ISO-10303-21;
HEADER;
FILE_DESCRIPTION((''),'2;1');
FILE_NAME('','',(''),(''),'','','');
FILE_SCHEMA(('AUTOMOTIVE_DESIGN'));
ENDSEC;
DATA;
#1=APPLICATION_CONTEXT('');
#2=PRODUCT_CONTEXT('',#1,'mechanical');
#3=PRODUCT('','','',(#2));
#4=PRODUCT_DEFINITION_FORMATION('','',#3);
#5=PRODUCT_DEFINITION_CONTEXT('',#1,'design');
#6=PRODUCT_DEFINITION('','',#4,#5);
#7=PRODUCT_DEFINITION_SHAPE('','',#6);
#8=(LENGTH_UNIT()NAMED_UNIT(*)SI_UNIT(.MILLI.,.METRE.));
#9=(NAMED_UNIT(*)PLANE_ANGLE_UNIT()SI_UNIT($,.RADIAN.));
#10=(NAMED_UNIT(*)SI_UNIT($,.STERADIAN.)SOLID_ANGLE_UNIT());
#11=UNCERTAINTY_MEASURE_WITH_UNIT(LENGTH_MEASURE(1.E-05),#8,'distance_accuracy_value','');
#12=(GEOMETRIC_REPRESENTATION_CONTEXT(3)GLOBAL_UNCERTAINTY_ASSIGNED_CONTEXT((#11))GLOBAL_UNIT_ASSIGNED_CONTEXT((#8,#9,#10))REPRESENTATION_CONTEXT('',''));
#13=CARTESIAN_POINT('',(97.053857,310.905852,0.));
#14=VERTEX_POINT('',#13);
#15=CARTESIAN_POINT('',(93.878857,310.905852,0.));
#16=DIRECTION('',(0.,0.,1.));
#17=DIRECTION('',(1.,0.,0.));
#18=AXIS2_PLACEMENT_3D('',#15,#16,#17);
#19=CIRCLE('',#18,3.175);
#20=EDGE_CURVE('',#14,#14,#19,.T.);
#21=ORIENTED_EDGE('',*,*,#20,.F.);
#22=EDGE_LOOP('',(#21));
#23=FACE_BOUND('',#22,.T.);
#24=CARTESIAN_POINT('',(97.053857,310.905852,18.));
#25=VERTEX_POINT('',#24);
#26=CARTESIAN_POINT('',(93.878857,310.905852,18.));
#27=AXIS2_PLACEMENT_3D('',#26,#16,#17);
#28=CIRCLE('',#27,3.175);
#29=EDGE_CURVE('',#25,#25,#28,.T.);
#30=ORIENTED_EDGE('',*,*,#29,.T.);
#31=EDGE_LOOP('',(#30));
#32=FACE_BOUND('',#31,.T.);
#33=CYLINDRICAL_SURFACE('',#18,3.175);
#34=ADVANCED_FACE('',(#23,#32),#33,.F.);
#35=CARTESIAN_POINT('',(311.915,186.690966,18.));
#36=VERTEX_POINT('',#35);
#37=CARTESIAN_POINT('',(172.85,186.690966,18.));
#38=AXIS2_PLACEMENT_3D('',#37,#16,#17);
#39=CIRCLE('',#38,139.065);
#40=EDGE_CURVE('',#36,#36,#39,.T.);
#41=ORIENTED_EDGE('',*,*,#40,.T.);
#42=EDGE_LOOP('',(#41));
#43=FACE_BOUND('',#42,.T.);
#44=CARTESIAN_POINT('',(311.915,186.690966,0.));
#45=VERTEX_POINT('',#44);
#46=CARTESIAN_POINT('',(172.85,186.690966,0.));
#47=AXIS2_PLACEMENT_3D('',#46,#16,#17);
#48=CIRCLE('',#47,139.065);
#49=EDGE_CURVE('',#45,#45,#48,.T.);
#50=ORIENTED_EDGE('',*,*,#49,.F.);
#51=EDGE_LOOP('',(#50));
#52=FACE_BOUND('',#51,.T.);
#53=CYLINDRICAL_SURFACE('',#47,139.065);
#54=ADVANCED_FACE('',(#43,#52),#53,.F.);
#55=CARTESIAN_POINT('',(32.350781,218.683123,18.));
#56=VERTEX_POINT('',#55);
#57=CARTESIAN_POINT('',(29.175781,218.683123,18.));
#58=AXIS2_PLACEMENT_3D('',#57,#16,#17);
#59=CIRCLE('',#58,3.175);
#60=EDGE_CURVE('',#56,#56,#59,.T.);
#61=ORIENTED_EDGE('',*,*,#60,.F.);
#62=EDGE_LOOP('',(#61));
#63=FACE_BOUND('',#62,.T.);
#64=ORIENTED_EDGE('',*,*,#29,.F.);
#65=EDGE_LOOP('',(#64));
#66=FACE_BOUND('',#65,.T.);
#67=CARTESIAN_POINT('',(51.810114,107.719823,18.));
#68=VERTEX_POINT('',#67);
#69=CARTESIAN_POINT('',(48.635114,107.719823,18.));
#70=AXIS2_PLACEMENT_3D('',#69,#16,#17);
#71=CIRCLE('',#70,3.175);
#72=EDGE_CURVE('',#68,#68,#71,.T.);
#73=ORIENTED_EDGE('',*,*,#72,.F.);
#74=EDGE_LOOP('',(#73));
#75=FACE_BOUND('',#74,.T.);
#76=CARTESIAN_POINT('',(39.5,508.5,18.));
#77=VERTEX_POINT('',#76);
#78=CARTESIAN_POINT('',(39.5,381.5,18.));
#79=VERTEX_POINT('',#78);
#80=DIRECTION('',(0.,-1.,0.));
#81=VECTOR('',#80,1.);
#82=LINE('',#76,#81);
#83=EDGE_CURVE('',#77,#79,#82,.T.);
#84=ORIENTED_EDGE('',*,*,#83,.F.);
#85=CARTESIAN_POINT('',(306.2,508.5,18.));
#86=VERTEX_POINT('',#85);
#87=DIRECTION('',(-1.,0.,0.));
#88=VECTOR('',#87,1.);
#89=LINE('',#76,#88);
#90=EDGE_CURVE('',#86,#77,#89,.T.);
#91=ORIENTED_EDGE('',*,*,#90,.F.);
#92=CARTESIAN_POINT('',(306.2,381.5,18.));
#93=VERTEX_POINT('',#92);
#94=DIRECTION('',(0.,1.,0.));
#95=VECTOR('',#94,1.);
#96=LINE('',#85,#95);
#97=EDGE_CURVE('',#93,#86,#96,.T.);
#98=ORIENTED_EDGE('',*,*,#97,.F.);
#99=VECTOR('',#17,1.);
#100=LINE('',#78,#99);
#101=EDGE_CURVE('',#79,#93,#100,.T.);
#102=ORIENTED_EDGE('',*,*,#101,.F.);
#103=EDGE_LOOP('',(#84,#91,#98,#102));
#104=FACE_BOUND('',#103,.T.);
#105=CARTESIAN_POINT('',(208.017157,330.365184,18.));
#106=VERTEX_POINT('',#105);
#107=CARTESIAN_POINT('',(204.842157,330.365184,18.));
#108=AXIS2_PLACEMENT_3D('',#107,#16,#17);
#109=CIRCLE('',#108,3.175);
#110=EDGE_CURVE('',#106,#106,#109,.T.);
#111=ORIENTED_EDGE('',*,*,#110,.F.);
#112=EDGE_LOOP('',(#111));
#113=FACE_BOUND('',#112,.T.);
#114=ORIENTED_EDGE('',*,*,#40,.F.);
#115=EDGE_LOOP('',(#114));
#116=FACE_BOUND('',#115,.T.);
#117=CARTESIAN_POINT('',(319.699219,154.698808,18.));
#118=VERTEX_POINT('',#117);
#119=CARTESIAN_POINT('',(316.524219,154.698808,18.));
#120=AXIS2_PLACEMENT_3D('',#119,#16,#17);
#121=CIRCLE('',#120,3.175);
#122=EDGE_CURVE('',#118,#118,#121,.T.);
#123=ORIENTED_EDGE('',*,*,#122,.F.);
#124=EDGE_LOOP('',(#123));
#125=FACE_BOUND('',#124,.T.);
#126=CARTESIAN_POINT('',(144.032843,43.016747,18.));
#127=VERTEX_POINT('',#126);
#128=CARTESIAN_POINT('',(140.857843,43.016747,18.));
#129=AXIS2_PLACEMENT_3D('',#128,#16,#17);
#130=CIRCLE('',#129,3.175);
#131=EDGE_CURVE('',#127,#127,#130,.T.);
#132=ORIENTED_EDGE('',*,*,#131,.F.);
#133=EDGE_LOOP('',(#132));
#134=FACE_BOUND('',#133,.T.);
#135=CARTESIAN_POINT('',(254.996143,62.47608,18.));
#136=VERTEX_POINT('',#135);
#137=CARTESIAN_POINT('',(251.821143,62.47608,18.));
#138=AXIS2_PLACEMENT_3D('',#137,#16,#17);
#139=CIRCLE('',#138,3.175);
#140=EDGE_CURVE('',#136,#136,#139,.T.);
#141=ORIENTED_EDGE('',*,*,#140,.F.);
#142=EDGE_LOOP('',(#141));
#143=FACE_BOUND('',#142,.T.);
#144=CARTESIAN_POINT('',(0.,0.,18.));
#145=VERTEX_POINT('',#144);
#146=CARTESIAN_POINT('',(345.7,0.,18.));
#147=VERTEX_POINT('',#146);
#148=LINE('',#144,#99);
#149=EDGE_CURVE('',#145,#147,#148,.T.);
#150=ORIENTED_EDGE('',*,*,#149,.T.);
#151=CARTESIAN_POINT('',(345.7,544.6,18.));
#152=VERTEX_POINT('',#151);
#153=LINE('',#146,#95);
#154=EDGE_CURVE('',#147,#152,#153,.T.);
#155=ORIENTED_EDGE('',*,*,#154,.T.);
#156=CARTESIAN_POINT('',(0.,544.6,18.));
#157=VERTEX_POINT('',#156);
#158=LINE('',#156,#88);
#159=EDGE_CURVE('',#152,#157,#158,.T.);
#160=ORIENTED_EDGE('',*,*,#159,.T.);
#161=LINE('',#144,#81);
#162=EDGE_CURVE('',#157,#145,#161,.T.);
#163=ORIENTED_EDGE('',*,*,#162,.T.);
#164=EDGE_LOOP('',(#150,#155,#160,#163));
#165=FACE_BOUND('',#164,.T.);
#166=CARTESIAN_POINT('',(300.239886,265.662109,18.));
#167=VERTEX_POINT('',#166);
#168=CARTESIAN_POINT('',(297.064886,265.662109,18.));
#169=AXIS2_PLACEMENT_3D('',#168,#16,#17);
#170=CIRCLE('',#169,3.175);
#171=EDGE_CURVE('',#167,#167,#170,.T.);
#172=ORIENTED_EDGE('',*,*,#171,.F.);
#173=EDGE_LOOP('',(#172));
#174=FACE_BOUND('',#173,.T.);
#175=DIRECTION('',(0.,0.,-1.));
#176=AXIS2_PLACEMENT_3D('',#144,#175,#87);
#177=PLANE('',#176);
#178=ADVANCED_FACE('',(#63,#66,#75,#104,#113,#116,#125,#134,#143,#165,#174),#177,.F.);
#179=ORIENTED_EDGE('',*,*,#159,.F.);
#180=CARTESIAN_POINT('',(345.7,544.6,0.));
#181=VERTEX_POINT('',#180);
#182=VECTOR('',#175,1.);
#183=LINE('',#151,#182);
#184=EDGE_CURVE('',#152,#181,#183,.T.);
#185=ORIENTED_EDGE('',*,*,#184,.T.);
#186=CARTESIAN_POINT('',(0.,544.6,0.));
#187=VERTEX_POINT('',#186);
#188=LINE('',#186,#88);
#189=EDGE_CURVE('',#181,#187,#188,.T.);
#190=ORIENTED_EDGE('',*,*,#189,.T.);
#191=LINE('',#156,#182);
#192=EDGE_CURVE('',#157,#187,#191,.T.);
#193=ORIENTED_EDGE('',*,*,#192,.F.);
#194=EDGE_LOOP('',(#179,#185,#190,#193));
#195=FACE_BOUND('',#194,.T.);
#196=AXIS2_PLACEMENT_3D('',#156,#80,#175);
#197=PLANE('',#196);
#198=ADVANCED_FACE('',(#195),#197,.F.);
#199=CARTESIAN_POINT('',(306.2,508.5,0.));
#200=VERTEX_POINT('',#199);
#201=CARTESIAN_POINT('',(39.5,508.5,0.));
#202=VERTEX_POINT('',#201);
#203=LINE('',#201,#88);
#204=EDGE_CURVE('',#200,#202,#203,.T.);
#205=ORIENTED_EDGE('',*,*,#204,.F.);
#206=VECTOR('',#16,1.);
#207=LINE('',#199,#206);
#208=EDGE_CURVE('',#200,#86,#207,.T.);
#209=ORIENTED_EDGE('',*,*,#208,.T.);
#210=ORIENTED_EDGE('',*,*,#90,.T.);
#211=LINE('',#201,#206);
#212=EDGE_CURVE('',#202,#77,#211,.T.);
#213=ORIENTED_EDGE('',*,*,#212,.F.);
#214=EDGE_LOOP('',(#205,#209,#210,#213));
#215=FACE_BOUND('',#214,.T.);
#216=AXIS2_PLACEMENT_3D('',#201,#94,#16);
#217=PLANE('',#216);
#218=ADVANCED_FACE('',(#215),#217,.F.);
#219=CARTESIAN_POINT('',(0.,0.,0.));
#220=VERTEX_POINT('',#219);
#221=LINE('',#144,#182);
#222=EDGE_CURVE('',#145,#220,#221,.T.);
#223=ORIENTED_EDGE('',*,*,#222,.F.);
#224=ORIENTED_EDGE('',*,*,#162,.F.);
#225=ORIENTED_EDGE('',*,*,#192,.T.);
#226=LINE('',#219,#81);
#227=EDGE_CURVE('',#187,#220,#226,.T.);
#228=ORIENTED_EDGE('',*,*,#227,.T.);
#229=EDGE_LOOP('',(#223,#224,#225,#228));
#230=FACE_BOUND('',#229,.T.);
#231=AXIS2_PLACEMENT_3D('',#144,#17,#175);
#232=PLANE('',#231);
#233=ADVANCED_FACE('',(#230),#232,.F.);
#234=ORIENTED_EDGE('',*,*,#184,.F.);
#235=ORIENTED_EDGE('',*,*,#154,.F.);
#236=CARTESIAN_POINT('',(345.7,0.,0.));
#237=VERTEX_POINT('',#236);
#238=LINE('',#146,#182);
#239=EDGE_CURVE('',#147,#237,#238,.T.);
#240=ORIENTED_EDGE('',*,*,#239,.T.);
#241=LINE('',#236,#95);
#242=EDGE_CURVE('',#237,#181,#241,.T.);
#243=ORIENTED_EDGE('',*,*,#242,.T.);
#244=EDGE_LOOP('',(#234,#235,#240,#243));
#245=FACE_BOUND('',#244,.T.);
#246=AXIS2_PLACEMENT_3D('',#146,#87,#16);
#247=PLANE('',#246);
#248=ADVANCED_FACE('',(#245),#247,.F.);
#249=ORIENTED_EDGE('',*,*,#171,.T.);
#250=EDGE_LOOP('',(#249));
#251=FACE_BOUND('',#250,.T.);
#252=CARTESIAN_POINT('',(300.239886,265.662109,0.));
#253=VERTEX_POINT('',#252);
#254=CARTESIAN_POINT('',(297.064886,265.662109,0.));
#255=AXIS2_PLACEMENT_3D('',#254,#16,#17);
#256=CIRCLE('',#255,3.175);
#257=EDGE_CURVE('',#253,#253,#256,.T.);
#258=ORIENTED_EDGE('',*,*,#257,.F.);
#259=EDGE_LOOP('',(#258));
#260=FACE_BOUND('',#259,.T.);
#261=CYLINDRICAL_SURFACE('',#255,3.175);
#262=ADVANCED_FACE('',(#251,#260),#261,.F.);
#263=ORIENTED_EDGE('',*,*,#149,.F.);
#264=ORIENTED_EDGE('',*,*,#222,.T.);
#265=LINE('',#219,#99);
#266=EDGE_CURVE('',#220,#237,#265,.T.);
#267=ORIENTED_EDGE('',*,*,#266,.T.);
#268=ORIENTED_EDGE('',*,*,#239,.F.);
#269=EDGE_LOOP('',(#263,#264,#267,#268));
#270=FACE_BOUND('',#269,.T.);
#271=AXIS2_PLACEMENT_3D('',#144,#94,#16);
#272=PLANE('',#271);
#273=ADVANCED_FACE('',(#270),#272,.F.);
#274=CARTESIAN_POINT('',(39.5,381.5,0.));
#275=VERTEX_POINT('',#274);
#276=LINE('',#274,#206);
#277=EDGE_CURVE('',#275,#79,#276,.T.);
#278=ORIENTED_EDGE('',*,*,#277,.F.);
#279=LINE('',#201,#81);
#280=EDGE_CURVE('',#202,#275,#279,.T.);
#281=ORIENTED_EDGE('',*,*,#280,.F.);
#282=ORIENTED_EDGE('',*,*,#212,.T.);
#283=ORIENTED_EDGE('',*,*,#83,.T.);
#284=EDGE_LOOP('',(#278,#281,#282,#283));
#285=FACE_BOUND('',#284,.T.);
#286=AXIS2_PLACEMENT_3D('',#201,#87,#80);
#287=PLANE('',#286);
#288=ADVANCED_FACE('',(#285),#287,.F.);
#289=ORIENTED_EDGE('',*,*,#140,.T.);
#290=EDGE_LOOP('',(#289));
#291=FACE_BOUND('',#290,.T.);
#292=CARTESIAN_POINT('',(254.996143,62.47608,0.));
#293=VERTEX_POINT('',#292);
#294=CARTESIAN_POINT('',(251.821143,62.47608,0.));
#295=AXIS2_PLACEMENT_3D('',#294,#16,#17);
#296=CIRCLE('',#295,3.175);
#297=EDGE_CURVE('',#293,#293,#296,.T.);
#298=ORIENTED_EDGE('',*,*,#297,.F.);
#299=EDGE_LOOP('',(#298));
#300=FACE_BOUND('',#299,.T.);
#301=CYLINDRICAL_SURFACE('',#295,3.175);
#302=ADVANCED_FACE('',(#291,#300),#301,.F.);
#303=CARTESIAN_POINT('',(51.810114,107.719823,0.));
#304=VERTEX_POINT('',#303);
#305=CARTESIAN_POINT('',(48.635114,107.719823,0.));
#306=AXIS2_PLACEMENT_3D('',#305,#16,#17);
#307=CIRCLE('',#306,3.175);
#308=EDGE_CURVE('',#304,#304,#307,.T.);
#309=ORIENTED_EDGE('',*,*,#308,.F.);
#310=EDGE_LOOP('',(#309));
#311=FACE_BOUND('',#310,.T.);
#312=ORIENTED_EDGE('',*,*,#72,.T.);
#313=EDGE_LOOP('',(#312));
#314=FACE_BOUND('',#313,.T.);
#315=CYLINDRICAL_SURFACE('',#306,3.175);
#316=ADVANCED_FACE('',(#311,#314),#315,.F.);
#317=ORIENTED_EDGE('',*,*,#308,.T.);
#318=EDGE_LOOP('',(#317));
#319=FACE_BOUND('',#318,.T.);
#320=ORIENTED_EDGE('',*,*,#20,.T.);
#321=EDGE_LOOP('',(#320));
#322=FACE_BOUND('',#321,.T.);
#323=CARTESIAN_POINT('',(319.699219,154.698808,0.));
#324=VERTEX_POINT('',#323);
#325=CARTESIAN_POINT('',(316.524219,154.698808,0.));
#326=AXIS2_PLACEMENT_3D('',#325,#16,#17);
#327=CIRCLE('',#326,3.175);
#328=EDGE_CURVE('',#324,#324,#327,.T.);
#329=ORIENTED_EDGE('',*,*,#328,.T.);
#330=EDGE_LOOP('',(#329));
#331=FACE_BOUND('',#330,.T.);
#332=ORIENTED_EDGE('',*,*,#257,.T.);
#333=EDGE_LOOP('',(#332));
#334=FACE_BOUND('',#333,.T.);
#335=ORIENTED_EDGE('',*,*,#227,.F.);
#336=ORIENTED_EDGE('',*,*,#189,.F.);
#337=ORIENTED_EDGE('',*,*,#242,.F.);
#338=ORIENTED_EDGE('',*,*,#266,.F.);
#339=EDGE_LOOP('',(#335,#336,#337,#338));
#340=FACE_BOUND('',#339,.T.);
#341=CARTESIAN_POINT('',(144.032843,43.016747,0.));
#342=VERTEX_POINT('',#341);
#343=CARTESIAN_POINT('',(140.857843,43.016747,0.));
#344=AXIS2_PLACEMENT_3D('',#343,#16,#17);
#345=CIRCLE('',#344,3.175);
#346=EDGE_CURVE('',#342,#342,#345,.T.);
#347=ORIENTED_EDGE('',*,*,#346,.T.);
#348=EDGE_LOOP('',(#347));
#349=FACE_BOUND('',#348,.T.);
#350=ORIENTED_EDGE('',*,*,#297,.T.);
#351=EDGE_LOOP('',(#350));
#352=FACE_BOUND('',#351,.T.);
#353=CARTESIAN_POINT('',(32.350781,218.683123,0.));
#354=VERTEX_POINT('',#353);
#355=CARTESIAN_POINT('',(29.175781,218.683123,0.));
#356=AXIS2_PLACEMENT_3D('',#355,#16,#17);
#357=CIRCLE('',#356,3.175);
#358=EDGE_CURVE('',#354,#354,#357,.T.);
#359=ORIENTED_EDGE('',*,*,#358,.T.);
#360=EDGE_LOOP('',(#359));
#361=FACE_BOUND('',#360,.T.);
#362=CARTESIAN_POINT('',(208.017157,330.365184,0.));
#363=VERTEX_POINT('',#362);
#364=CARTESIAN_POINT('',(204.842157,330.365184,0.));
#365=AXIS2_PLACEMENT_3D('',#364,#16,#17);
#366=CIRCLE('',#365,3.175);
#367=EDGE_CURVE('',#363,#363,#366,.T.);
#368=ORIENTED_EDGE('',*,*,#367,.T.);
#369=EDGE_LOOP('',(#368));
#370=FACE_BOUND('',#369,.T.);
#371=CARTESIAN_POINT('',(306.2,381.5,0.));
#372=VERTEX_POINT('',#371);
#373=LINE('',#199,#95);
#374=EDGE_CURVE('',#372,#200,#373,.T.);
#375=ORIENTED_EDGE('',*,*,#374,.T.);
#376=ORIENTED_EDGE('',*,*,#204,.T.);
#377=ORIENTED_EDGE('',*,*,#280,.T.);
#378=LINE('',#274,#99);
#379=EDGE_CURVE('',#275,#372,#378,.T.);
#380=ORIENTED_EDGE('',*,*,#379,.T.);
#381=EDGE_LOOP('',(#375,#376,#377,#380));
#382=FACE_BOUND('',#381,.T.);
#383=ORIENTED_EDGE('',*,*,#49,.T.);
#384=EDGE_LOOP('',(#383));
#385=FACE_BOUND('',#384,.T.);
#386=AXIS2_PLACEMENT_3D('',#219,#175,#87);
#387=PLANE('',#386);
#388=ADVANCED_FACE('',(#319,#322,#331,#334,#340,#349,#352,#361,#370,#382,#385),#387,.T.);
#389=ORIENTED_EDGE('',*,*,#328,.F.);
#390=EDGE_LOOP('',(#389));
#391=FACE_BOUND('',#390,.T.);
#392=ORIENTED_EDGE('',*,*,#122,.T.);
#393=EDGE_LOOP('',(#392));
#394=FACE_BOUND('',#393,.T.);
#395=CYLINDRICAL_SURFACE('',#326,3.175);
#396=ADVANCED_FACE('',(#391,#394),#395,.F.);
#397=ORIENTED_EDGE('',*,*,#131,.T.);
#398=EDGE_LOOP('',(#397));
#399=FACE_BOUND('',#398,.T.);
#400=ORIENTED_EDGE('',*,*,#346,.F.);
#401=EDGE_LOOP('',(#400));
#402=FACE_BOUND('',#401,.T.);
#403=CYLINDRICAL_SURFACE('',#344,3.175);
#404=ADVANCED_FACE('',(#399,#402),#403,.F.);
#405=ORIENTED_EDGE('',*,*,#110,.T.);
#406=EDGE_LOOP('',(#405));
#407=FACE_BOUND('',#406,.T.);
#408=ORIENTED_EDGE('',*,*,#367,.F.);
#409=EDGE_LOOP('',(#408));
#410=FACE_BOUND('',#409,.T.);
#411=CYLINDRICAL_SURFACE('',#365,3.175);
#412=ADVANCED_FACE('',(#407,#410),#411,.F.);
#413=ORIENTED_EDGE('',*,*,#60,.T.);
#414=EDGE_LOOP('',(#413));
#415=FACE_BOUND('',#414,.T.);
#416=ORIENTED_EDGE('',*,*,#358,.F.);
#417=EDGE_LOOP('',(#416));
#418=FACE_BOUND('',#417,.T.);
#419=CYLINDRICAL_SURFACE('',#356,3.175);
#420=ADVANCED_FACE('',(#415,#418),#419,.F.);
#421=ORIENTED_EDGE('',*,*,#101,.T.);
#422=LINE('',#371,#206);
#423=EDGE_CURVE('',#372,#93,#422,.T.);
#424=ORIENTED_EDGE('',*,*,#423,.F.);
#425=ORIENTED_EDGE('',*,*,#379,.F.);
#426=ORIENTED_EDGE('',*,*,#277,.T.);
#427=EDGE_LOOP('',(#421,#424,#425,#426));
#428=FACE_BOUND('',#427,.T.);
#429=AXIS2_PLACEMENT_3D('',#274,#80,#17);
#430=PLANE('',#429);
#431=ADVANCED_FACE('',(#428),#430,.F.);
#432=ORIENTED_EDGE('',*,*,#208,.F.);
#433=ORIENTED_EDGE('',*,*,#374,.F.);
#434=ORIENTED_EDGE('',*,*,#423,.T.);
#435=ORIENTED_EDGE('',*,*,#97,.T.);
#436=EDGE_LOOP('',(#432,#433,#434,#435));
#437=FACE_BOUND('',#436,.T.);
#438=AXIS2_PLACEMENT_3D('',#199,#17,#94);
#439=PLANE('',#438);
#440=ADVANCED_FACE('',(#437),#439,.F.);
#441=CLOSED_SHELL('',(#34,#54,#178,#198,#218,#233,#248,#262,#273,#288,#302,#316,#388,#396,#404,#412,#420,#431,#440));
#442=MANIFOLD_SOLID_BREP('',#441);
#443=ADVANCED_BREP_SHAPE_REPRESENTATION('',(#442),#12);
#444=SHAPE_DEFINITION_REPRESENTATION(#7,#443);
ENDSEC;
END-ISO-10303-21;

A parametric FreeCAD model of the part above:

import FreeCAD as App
import Part
import Sketcher

V = App.Vector
Q = App.Units.Quantity

doc = App.newDocument("Part")
body = doc.addObject("PartDesign::Body", "Body")

# Sketch on XY plane
sketch1 = body.newObject("Sketcher::SketchObject", "Sketch")
sketch1.AttachmentSupport = (doc.getObject("XY_Plane"), [""])
sketch1.MapMode = "FlatFace"
sketch1.addGeometry([
    Part.LineSegment(V(0, 544.6, 0), V(0, 0, 0)),
    Part.LineSegment(V(0, 0, 0), V(345.7, 0, 0)),
    Part.LineSegment(V(345.7, 0, 0), V(345.7, 544.6, 0)),
    Part.LineSegment(V(345.7, 544.6, 0), V(0, 544.6, 0)),
], False)
sketch1.addConstraint([
    Sketcher.Constraint("Coincident", 0, 2, 1, 1),
    Sketcher.Constraint("Coincident", 1, 2, 2, 1),
    Sketcher.Constraint("Coincident", 2, 2, 3, 1),
    Sketcher.Constraint("Coincident", 3, 2, 0, 1),
    Sketcher.Constraint("Vertical", 0),
    Sketcher.Constraint("Horizontal", 1),
    Sketcher.Constraint("Vertical", 2),
    Sketcher.Constraint("Horizontal", 3),
    Sketcher.Constraint("Coincident", 0, 2, -1, 1),
    Sketcher.Constraint("DistanceX", 1, 1, 1, 2, Q("345.7 mm")),
    Sketcher.Constraint("DistanceY", 0, 2, 0, 1, Q("544.6 mm")),
])
pad1 = body.newObject("PartDesign::Pad", "Pad")
pad1.Profile = sketch1
pad1.Length = 18

# Sketch on XY plane
sketch2 = body.newObject("Sketcher::SketchObject", "Sketch001")
sketch2.AttachmentSupport = (doc.getObject("XY_Plane"), [""])
sketch2.MapMode = "FlatFace"
sketch2.AttachmentOffset = App.Placement(V(0, 0, 18), App.Rotation())
sketch2.addGeometry([
    Part.LineSegment(V(39.5, 508.5, 0), V(39.5, 381.5, 0)),
    Part.LineSegment(V(39.5, 381.5, 0), V(306.2, 381.5, 0)),
    Part.LineSegment(V(306.2, 381.5, 0), V(306.2, 508.5, 0)),
    Part.LineSegment(V(306.2, 508.5, 0), V(39.5, 508.5, 0)),
], False)
sketch2.addConstraint([
    Sketcher.Constraint("Coincident", 0, 2, 1, 1),
    Sketcher.Constraint("Coincident", 1, 2, 2, 1),
    Sketcher.Constraint("Coincident", 2, 2, 3, 1),
    Sketcher.Constraint("Coincident", 3, 2, 0, 1),
    Sketcher.Constraint("Vertical", 0),
    Sketcher.Constraint("Horizontal", 1),
    Sketcher.Constraint("Vertical", 2),
    Sketcher.Constraint("Horizontal", 3),
    Sketcher.Constraint("DistanceY", 0, 2, 0, 1, Q("127 mm")),
    Sketcher.Constraint("DistanceX", 1, 1, 1, 2, Q("266.7 mm")),
    Sketcher.Constraint("DistanceX", -1, 1, 0, 2, Q("39.5 mm")),
    Sketcher.Constraint("DistanceY", -1, 1, 0, 2, Q("381.5 mm")),
])
pocket1 = body.newObject("PartDesign::Pocket", "Pocket")
pocket1.Profile = sketch2
pocket1.Type = "ThroughAll"

# Sketch on XY plane
sketch3 = body.newObject("Sketcher::SketchObject", "Sketch002")
sketch3.AttachmentSupport = (doc.getObject("XY_Plane"), [""])
sketch3.MapMode = "FlatFace"
sketch3.AttachmentOffset = App.Placement(V(0, 0, 18), App.Rotation())
sketch3.addGeometry(Part.Circle(V(172.85, 186.690966, 0), V(0, 0, 1), 139.065), False)
sketch3.addConstraint([
    Sketcher.Constraint("Diameter", 0, Q("278.13 mm")),
    Sketcher.Constraint("DistanceX", -1, 1, 0, 3, Q("172.85 mm")),
    Sketcher.Constraint("DistanceY", -1, 1, 0, 3, Q("186.690966 mm")),
])
pocket2 = body.newObject("PartDesign::Pocket", "Pocket001")
pocket2.Profile = sketch3
pocket2.Type = "ThroughAll"

# Sketch on XY plane
sketch4 = body.newObject("Sketcher::SketchObject", "Sketch003")
sketch4.AttachmentSupport = (doc.getObject("XY_Plane"), [""])
sketch4.MapMode = "FlatFace"
sketch4.AttachmentOffset = App.Placement(V(0, 0, 18), App.Rotation())
sketch4.addGeometry([
    Part.Circle(V(204.842157, 330.365184, 0), V(0, 0, 1), 3.175),  # 0
    Part.Circle(V(297.064886, 265.662109, 0), V(0, 0, 1), 3.175),  # 1
    Part.Circle(V(316.524219, 154.698808, 0), V(0, 0, 1), 3.175),  # 2
    Part.Circle(V(251.821143, 62.47608, 0), V(0, 0, 1), 3.175),  # 3
    Part.Circle(V(140.857843, 43.016747, 0), V(0, 0, 1), 3.175),  # 4
    Part.Circle(V(48.635114, 107.719823, 0), V(0, 0, 1), 3.175),  # 5
    Part.Circle(V(29.175781, 218.683123, 0), V(0, 0, 1), 3.175),  # 6
    Part.Circle(V(93.878857, 310.905852, 0), V(0, 0, 1), 3.175),  # 7
], False)
sketch4.addConstraint([
    Sketcher.Constraint("Equal", 0, 1),
    Sketcher.Constraint("Equal", 1, 2),
    Sketcher.Constraint("Equal", 2, 3),
    Sketcher.Constraint("Equal", 3, 4),
    Sketcher.Constraint("Equal", 4, 5),
    Sketcher.Constraint("Equal", 5, 6),
    Sketcher.Constraint("Equal", 6, 7),
    Sketcher.Constraint("Diameter", 0, Q("6.35 mm")),
    Sketcher.Constraint("DistanceY", 2, 3, 1, 3, Q("110.9633 mm")),
    Sketcher.Constraint("DistanceX", 4, 3, 3, 3, Q("110.9633 mm")),
    Sketcher.Constraint("DistanceY", 5, 3, 6, 3, Q("110.9633 mm")),
    Sketcher.Constraint("DistanceX", 7, 3, 0, 3, Q("110.9633 mm")),
    Sketcher.Constraint("DistanceY", -1, 1, 1, 3, Q("265.662109 mm")),
    Sketcher.Constraint("DistanceX", -1, 1, 2, 3, Q("316.524219 mm")),
    Sketcher.Constraint("DistanceY", -1, 1, 3, 3, Q("62.47608 mm")),
    Sketcher.Constraint("DistanceX", -1, 1, 6, 3, Q("29.175781 mm")),
    Sketcher.Constraint("DistanceY", -1, 1, 7, 3, Q("310.905852 mm")),
    Sketcher.Constraint("DistanceX", 0, 3, 1, 3, Q("92.222728 mm")),
    Sketcher.Constraint("DistanceX", 0, 3, 2, 3, Q("111.682061 mm")),
    Sketcher.Constraint("DistanceY", 4, 3, 2, 3, Q("111.682061 mm")),
    Sketcher.Constraint("DistanceX", 5, 3, 4, 3, Q("92.222728 mm")),
    Sketcher.Constraint("DistanceY", 5, 3, 0, 3, Q("222.645362 mm")),
    Sketcher.Constraint("DistanceX", 5, 3, 1, 3, Q("248.429772 mm")),
    Sketcher.Constraint("DistanceY", 6, 3, 7, 3, Q("92.222728 mm")),
])
pocket3 = body.newObject("PartDesign::Pocket", "Pocket002")
pocket3.Profile = sketch4
pocket3.Type = "ThroughAll"

doc.recompute()
